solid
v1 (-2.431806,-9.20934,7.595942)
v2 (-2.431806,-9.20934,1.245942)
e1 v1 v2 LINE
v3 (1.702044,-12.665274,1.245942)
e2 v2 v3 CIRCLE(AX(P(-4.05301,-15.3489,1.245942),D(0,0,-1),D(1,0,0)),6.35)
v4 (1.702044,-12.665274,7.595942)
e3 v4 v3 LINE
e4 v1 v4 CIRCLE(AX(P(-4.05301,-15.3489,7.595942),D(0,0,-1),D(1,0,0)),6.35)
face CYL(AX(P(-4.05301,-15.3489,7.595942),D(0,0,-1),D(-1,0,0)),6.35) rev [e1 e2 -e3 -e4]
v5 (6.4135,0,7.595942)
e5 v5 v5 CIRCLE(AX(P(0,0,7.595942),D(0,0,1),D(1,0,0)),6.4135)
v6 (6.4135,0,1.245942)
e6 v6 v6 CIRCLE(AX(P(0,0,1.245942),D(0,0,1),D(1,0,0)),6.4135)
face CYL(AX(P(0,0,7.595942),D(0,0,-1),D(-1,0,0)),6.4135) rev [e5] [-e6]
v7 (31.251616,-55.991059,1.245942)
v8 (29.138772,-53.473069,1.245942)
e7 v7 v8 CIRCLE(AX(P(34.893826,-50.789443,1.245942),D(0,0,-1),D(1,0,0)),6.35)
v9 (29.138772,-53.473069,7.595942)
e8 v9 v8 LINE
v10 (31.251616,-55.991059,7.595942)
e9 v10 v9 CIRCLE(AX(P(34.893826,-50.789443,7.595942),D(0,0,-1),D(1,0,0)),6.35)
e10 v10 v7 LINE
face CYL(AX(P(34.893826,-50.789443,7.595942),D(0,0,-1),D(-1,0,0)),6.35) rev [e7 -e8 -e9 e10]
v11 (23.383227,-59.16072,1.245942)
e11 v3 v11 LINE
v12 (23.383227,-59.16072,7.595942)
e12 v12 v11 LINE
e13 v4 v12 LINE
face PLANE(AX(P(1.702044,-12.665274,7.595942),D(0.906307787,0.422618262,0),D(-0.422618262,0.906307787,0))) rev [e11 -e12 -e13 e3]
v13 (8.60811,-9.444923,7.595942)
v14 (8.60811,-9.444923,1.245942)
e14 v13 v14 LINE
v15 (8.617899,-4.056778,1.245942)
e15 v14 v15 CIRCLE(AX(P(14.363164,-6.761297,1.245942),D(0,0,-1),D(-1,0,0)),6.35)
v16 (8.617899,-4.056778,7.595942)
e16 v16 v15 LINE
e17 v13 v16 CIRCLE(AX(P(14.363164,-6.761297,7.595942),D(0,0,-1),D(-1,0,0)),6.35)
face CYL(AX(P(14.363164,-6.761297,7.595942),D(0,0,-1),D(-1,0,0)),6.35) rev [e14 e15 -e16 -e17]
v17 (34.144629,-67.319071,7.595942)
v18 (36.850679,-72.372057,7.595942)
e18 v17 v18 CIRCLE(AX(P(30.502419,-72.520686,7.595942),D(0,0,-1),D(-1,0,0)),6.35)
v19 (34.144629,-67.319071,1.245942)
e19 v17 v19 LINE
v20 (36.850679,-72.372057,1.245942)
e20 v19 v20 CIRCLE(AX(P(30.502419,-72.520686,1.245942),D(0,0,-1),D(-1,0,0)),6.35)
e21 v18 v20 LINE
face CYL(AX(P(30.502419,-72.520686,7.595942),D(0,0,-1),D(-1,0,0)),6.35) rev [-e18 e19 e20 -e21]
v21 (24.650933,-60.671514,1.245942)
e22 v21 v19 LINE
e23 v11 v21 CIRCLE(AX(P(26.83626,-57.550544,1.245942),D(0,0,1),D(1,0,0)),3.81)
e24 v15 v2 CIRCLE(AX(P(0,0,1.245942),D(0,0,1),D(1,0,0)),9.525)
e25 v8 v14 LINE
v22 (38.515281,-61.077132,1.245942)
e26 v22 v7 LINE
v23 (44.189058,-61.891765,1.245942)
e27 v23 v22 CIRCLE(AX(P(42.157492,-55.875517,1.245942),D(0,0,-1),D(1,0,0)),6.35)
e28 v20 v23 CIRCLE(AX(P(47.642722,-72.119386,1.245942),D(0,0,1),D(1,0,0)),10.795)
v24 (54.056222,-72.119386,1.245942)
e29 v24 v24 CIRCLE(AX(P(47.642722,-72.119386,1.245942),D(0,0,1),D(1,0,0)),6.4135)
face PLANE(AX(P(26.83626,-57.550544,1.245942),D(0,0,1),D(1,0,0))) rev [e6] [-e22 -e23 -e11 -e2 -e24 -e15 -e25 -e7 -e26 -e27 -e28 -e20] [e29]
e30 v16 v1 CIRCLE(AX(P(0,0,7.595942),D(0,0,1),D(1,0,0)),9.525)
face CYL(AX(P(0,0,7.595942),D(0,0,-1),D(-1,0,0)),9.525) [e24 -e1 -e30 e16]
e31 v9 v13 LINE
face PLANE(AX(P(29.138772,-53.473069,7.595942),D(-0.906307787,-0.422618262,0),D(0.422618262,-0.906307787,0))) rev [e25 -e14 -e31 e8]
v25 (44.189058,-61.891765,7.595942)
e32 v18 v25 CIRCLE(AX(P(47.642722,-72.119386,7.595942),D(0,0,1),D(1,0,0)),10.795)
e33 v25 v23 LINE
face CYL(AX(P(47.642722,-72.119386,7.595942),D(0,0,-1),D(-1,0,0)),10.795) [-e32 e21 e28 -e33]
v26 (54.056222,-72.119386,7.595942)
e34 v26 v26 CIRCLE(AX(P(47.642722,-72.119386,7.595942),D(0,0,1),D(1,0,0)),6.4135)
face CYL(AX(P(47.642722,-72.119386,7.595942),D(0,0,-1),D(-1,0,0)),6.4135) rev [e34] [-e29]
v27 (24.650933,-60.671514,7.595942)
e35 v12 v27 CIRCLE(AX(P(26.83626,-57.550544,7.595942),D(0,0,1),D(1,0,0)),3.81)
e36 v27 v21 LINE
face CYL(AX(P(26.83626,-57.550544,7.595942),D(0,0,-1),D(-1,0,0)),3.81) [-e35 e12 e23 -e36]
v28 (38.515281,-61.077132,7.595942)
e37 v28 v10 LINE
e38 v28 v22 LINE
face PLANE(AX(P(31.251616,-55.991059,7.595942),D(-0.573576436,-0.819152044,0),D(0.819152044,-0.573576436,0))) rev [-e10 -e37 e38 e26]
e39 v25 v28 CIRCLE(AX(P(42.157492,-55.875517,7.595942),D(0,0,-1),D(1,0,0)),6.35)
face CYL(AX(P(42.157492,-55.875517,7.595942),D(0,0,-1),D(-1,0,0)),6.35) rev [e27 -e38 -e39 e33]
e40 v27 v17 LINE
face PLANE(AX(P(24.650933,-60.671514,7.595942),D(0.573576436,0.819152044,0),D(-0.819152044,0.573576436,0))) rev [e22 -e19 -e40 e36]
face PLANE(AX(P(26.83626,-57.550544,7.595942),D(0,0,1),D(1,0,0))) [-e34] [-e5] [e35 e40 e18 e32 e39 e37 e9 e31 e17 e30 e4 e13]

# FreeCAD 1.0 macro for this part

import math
import FreeCAD as App
import Part
import Sketcher

V = App.Vector
Q = App.Units.Quantity

doc = App.newDocument("Part")
body = doc.addObject("PartDesign::Body", "Body")

sketch1 = body.newObject("Sketcher::SketchObject", "Sketch")
sketch1.AttachmentSupport = (doc.getObject("XY_Plane"), [""])
sketch1.MapMode = "FlatFace"
sketch1.AttachmentOffset = App.Placement(V(0, 0, 1.245942), App.Rotation())
sketch1.addGeometry([
    Part.LineSegment(V(1.7, -12.7, 0), V(23.4, -59.2, 0)),
    Part.ArcOfCircle(Part.Circle(V(26.8, -57.6, 0), V(0, 0, 1), 3.8), math.radians(-155), math.radians(-125)),
    Part.LineSegment(V(24.7, -60.7, 0), V(34.1, -67.3, 0)),
    Part.ArcOfCircle(Part.Circle(V(30.5, -72.5, 0), V(0, 0, 1), 6.3), math.radians(1), math.radians(55)),
    Part.ArcOfCircle(Part.Circle(V(47.6, -72.1, 0), V(0, 0, 1), 10.8), math.radians(-179), math.radians(109)),
    Part.ArcOfCircle(Part.Circle(V(42.2, -55.9, 0), V(0, 0, 1), 6.4), math.radians(-125), math.radians(-71)),
    Part.LineSegment(V(38.5, -61.1, 0), V(31.3, -56, 0)),
    Part.ArcOfCircle(Part.Circle(V(34.9, -50.8, 0), V(0, 0, 1), 6.4), math.radians(-155), math.radians(-125)),
    Part.LineSegment(V(29.1, -53.5, 0), V(8.6, -9.4, 0)),
    Part.ArcOfCircle(Part.Circle(V(14.4, -6.8, 0), V(0, 0, 1), 6.4), math.radians(155), math.radians(205)),
    Part.ArcOfCircle(Part.Circle(V(0, 0, 0), V(0, 0, 1), 9.5), math.radians(-25), math.radians(255)),
    Part.ArcOfCircle(Part.Circle(V(-4.1, -15.3, 0), V(0, 0, 1), 6.4), math.radians(25), math.radians(75)),
    Part.Circle(V(47.6, -72.1, 0), V(0, 0, 1), 6.4),
    Part.Circle(V(0, 0, 0), V(0, 0, 1), 6.4),
], False)
sketch1.addConstraint([
    Sketcher.Constraint("Tangent", 0, 2, 1, 1),
    Sketcher.Constraint("Tangent", 1, 2, 2, 1),
    Sketcher.Constraint("Tangent", 2, 2, 3, 2),
    Sketcher.Constraint("Tangent", 3, 1, 4, 1),
    Sketcher.Constraint("Tangent", 4, 2, 5, 2),
    Sketcher.Constraint("Tangent", 5, 1, 6, 1),
    Sketcher.Constraint("Tangent", 6, 2, 7, 2),
    Sketcher.Constraint("Tangent", 7, 1, 8, 1),
    Sketcher.Constraint("Tangent", 8, 2, 9, 2),
    Sketcher.Constraint("Tangent", 9, 1, 10, 1),
    Sketcher.Constraint("Tangent", 10, 2, 11, 2),
    Sketcher.Constraint("Tangent", 11, 1, 0, 1),
    Sketcher.Constraint("Coincident", 10, 3, -1, 1),
    Sketcher.Constraint("Coincident", 13, 3, -1, 1),
    Sketcher.Constraint("Coincident", 12, 3, 4, 3),
    Sketcher.Constraint("Equal", 3, 5),
    Sketcher.Constraint("Equal", 5, 7),
    Sketcher.Constraint("Equal", 7, 9),
    Sketcher.Constraint("Equal", 9, 11),
    Sketcher.Constraint("Equal", 12, 13),
    Sketcher.Constraint("Parallel", 2, 6),
    Sketcher.Constraint("Parallel", 0, 8),
    Sketcher.Constraint("Radius", 1, Q("0.15 in")),
    Sketcher.Constraint("Radius", 3, Q("0.25 in")),
    Sketcher.Constraint("Diameter", 12, Q("0.505 in")),
    Sketcher.Constraint("Angle", 0, Q("-65 deg")),
    Sketcher.Constraint("Angle", 2, Q("-35 deg")),
    Sketcher.Constraint("Radius", 4, Q("0.425 in")),
    Sketcher.Constraint("Radius", 10, Q("0.375 in")),
    Sketcher.Constraint("Distance", 6, 8.867299),
    Sketcher.Constraint("DistanceY", 11, 3, -1, 1, 15.3489),
    Sketcher.Constraint("DistanceX", -1, 1, 9, 1, 8.617899),
    Sketcher.Constraint("DistanceY", 3, 3, 4, 3, 0.401301),
    Sketcher.Constraint("DistanceY", 1, 3, 7, 3, 6.761101),
    Sketcher.Constraint("DistanceX", 11, 3, 5, 3, 46.210502),
])
pad1 = body.newObject("PartDesign::Pad", "Pad")
pad1.Profile = sketch1
pad1.Length = Q("0.25 in")

doc.recompute()
